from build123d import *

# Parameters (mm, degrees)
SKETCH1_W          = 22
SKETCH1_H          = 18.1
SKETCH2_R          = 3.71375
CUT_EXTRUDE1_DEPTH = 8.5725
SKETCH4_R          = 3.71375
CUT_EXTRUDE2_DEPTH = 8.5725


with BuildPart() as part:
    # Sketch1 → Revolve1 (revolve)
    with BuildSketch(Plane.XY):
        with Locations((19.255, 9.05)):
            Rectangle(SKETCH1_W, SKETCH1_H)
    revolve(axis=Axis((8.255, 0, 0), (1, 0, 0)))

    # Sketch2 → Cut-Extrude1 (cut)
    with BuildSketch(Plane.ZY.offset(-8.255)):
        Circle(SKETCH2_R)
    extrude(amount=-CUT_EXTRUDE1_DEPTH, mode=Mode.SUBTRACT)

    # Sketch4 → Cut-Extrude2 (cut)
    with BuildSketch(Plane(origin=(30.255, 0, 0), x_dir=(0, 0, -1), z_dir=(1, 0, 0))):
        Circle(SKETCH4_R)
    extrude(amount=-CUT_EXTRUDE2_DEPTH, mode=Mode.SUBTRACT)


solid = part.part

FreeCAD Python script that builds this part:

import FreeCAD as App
import Part
import Sketcher

V = App.Vector

doc = App.newDocument("Part")
body = doc.addObject("PartDesign::Body", "Body")

# Sketch on XY plane
sketch1 = body.newObject("Sketcher::SketchObject", "Sketch")
sketch1.AttachmentSupport = (doc.getObject("XY_Plane"), [""])
sketch1.MapMode = "FlatFace"
sketch1.addGeometry([
    Part.LineSegment(V(8, 18, 0), V(8, 0, 0)),
    Part.LineSegment(V(8, 0, 0), V(30, 0, 0)),
    Part.LineSegment(V(30, 0, 0), V(30, 18, 0)),
    Part.LineSegment(V(30, 18, 0), V(8, 18, 0)),
], False)
sketch1.addConstraint([
    Sketcher.Constraint("Coincident", 0, 2, 1, 1),
    Sketcher.Constraint("Coincident", 1, 2, 2, 1),
    Sketcher.Constraint("Coincident", 2, 2, 3, 1),
    Sketcher.Constraint("Coincident", 3, 2, 0, 1),
    Sketcher.Constraint("Vertical", 0),
    Sketcher.Constraint("Horizontal", 1),
    Sketcher.Constraint("Vertical", 2),
    Sketcher.Constraint("Horizontal", 3),
    Sketcher.Constraint("PointOnObject", 0, 2, -1),
    Sketcher.Constraint("DistanceX", 1, 1, 1, 2, 22.0),
    Sketcher.Constraint("DistanceY", 0, 2, 0, 1, 18.1),
    Sketcher.Constraint("DistanceX", -1, 1, 0, 2, 8.255),
])
revolution = body.newObject("PartDesign::Revolution", "Revolution")
revolution.Profile = sketch1
revolution.ReferenceAxis = (sketch1, ["H_Axis"])
revolution.Angle = 360

# Sketch on YZ plane
sketch2 = body.newObject("Sketcher::SketchObject", "Sketch001")
sketch2.AttachmentSupport = (doc.getObject("YZ_Plane"), [""])
sketch2.MapMode = "FlatFace"
sketch2.AttachmentOffset = App.Placement(V(0, 0, 8.255), App.Rotation())
sketch2.addGeometry(Part.Circle(V(0, 0, 0), V(0, 0, 1), 3.7), False)
sketch2.addConstraint([
    Sketcher.Constraint("Coincident", 0, 3, -1, 1),
    Sketcher.Constraint("Diameter", 0, 7.4275),
])
pocket1 = body.newObject("PartDesign::Pocket", "Pocket")
pocket1.Profile = sketch2
pocket1.Length = 8.5725
pocket1.Reversed = True

# Sketch on YZ plane
sketch3 = body.newObject("Sketcher::SketchObject", "Sketch002")
sketch3.AttachmentSupport = (doc.getObject("YZ_Plane"), [""])
sketch3.MapMode = "FlatFace"
sketch3.AttachmentOffset = App.Placement(V(0, 0, 30.255), App.Rotation())
sketch3.addGeometry(Part.Circle(V(0, 0, 0), V(0, 0, 1), 3.7), False)
sketch3.addConstraint([
    Sketcher.Constraint("Coincident", 0, 3, -1, 1),
    Sketcher.Constraint("Diameter", 0, 7.4275),
])
pocket2 = body.newObject("PartDesign::Pocket", "Pocket001")
pocket2.Profile = sketch3
pocket2.Length = 8.5725

doc.recompute()
